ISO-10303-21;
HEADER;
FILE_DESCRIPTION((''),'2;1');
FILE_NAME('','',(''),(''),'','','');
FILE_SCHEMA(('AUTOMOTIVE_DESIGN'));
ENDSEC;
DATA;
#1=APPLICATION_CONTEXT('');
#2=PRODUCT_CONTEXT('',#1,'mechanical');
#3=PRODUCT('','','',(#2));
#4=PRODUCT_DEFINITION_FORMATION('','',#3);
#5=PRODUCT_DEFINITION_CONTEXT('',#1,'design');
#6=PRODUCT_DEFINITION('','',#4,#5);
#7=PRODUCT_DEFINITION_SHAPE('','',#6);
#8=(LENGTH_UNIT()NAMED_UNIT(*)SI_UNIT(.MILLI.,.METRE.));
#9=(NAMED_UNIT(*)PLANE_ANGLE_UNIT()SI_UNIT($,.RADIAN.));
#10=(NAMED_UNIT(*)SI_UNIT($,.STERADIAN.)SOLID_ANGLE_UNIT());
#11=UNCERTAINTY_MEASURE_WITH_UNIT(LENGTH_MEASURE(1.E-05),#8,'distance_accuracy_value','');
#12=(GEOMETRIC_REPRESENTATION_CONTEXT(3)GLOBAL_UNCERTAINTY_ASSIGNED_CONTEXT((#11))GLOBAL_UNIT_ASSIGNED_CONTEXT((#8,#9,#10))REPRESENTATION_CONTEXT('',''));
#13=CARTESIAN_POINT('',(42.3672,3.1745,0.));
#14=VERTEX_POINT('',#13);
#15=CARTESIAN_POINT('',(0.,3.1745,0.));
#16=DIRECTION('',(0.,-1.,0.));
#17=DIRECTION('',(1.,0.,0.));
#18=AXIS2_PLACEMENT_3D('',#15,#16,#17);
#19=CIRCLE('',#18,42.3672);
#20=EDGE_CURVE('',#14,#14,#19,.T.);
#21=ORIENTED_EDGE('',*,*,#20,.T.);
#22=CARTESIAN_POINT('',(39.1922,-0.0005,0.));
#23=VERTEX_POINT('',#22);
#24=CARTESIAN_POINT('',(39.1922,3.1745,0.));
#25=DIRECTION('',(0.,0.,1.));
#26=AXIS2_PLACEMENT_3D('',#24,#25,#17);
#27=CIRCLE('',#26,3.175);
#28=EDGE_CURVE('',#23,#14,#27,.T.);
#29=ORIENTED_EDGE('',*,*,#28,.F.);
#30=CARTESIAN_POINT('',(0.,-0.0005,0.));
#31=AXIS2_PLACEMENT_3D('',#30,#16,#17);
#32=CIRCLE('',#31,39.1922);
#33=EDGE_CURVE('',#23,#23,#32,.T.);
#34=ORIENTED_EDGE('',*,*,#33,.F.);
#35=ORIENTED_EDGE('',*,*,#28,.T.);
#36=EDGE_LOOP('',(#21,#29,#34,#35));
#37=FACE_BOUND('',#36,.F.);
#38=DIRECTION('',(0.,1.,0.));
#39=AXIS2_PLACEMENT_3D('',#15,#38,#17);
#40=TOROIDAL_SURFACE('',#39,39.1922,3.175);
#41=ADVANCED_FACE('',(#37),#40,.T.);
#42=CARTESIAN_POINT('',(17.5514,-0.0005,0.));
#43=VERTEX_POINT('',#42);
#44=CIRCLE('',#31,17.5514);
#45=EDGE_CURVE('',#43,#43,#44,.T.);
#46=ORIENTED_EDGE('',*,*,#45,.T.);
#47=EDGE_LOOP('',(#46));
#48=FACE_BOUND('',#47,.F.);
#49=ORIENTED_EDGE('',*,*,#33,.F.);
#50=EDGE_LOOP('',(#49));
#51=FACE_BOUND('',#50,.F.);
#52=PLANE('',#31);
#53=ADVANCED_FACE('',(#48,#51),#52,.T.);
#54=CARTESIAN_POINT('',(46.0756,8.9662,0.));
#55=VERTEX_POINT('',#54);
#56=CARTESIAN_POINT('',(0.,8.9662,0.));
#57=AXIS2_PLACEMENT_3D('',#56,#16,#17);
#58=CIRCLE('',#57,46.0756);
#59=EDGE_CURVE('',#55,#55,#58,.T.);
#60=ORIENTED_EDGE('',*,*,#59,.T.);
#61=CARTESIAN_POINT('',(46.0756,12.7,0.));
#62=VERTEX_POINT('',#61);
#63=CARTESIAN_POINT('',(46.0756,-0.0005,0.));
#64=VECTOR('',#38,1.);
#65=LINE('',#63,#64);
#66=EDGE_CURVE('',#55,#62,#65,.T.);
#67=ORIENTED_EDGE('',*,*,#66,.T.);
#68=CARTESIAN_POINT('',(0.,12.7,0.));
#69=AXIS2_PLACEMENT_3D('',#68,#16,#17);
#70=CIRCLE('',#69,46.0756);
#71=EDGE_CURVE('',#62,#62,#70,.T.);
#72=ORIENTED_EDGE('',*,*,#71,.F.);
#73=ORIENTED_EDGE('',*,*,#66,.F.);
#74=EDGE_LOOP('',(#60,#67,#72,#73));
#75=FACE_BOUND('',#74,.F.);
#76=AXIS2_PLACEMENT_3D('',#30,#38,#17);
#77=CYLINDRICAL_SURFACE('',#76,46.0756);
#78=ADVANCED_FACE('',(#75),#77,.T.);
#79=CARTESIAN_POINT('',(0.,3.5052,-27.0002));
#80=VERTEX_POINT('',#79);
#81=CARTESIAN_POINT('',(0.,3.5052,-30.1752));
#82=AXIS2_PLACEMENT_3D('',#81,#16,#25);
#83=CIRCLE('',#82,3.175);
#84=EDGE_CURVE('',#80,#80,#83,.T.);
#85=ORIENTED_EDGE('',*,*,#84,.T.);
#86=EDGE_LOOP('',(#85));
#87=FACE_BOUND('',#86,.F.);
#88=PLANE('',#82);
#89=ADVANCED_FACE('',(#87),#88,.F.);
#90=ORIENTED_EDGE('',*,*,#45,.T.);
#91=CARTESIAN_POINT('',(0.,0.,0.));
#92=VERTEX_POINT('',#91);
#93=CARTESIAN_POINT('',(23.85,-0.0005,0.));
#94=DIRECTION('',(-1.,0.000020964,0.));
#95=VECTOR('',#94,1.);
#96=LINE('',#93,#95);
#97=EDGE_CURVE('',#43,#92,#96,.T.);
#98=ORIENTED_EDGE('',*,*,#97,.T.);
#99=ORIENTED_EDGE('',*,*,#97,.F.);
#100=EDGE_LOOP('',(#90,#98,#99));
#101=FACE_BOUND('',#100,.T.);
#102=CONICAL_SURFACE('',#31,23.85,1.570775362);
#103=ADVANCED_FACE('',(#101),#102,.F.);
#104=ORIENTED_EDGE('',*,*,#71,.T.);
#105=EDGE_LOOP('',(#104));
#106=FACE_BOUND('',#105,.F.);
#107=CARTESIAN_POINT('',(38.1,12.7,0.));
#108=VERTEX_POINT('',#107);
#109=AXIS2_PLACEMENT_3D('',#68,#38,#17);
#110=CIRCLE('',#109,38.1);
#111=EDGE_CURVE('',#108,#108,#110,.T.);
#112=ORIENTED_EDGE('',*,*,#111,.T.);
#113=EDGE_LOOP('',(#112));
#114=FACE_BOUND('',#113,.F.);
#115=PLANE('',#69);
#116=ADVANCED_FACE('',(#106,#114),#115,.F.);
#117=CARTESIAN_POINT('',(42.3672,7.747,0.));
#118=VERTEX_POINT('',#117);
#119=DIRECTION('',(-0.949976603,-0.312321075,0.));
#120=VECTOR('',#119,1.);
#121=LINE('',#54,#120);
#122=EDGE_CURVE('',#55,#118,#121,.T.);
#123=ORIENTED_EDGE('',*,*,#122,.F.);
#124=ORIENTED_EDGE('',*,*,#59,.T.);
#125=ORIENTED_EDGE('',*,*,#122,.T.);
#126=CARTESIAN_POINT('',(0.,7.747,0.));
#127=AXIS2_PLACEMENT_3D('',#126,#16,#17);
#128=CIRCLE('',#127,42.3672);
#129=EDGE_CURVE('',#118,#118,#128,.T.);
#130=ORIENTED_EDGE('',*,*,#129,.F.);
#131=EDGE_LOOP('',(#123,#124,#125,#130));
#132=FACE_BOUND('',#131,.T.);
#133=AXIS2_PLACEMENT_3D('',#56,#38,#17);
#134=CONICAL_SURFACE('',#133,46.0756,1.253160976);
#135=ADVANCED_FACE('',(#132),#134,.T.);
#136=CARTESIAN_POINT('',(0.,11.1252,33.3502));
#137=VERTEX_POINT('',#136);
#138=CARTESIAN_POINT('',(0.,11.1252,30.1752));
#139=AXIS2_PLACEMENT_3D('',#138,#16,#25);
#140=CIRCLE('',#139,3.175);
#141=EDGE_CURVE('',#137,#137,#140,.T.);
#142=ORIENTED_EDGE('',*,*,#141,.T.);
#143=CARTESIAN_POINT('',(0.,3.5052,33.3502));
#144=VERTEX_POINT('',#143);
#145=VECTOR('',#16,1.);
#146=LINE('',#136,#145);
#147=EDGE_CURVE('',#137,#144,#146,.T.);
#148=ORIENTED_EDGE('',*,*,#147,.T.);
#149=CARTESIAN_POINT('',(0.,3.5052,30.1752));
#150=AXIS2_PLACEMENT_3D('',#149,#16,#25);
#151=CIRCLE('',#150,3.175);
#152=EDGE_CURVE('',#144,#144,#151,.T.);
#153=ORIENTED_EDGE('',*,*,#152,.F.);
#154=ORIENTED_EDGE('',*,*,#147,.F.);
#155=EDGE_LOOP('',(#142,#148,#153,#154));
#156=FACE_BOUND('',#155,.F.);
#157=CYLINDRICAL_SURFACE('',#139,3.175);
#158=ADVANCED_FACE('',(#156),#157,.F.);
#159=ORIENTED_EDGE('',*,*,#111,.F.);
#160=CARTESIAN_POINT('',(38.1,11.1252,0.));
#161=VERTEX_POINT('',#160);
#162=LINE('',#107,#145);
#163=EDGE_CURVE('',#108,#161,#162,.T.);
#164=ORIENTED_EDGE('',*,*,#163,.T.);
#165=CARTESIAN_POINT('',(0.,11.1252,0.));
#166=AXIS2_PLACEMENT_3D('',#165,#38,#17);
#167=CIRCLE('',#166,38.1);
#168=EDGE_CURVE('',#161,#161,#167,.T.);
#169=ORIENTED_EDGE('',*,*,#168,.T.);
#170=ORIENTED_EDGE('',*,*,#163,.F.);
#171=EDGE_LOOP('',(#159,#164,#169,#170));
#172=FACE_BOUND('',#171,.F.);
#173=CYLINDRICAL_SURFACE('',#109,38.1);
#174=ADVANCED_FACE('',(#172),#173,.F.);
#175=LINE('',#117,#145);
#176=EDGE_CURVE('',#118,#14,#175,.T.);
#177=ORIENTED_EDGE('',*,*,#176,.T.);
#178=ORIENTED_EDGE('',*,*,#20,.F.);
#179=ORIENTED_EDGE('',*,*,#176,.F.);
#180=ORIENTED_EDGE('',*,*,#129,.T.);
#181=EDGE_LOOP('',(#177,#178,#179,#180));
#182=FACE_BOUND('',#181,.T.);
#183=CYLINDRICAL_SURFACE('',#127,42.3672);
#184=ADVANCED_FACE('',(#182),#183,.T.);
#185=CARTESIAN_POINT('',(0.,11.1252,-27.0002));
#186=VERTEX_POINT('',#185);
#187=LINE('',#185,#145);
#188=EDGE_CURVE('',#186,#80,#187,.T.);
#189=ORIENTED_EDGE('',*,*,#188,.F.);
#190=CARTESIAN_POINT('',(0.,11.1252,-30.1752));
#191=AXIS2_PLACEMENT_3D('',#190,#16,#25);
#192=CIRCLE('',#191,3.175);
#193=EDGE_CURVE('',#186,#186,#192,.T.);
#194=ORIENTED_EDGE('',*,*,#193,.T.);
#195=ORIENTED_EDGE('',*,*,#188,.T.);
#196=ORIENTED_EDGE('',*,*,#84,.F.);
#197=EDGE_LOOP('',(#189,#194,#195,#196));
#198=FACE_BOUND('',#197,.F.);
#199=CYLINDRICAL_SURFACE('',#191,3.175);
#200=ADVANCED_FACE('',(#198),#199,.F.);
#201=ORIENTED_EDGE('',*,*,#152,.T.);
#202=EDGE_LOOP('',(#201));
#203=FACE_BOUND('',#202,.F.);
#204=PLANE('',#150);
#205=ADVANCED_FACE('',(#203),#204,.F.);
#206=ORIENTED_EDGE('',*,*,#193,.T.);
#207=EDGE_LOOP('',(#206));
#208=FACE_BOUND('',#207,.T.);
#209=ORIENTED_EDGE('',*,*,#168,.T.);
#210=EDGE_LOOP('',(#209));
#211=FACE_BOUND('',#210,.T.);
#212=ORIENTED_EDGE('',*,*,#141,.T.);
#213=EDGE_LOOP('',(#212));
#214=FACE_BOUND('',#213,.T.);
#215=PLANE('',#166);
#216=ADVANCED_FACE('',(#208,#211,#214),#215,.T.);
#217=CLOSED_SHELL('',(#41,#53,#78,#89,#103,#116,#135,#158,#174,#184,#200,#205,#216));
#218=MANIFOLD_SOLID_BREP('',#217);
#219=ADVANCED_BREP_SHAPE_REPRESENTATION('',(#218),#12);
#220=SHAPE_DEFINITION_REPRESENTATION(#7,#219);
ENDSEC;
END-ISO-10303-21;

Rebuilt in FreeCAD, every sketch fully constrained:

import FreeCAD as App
import Part
import Sketcher

V = App.Vector
Q = App.Units.Quantity


def edges_at(feature, points):
    """Names of the edges that pass closest to the given points."""
    edges = feature.Shape.Edges
    near = lambda p: min(range(len(edges)), key=lambda i: edges[i].distToShape(Part.Vertex(*p))[0])
    return sorted({f"Edge{near(p) + 1}" for p in points})

doc = App.newDocument("Part")
body = doc.addObject("PartDesign::Body", "Body")

# Sketch on XY plane
sketch1 = body.newObject("Sketcher::SketchObject", "Sketch")
sketch1.AttachmentSupport = (doc.getObject("XY_Plane"), [""])
sketch1.MapMode = "FlatFace"
sketch1.addGeometry([
    Part.LineSegment(V(17.5514, -0.0005, 0), V(42.3672, -0.0005, 0)),  # 0
    Part.LineSegment(V(42.3672, -0.0005, 0), V(42.3672, 7.747, 0)),  # 1
    Part.LineSegment(V(42.3672, 7.747, 0), V(46.0756, 8.9662, 0)),  # 2
    Part.LineSegment(V(46.0756, 8.9662, 0), V(46.0756, 12.7, 0)),  # 3
    Part.LineSegment(V(46.0756, 12.7, 0), V(0, 12.7, 0)),  # 4
    Part.LineSegment(V(0, 12.7, 0), V(0, 0, 0)),  # 5
    Part.LineSegment(V(0, 0, 0), V(17.5514, -0.000368, 0)),  # 6
], False)
sketch1.addConstraint([
    Sketcher.Constraint("Coincident", 0, 2, 1, 1),
    Sketcher.Constraint("Coincident", 1, 2, 2, 1),
    Sketcher.Constraint("Coincident", 2, 2, 3, 1),
    Sketcher.Constraint("Coincident", 3, 2, 4, 1),
    Sketcher.Constraint("Coincident", 4, 2, 5, 1),
    Sketcher.Constraint("Coincident", 5, 2, 6, 1),
    Sketcher.Constraint("Coincident", 6, 2, 0, 1),
    Sketcher.Constraint("Horizontal", 0),
    Sketcher.Constraint("Vertical", 1),
    Sketcher.Constraint("Vertical", 3),
    Sketcher.Constraint("Horizontal", 4),
    Sketcher.Constraint("Vertical", 5),
    Sketcher.Constraint("Coincident", 5, 2, -1, 1),
    Sketcher.Constraint("DistanceY", 5, 2, 5, 1, Q("0.5 in")),
    Sketcher.Constraint("DistanceX", 4, 2, 4, 1, Q("1.814 in")),
    Sketcher.Constraint("DistanceY", 3, 1, 3, 2, Q("0.147 in")),
    Sketcher.Constraint("Distance", 6, Q("0.691 in")),
    Sketcher.Constraint("DistanceX", -1, 1, 0, 2, Q("1.668 in")),
    Sketcher.Constraint("DistanceY", 1, 2, 3, 2, Q("0.195 in")),
    Sketcher.Constraint("DistanceY", 0, 2, -1, 1, 0.0005),
])
revolution = body.newObject("PartDesign::Revolution", "Revolution")
revolution.Profile = sketch1
revolution.ReferenceAxis = (sketch1, ["V_Axis"])
revolution.Angle = 360

# Sketch on XZ plane
sketch2 = body.newObject("Sketcher::SketchObject", "Sketch001")
sketch2.AttachmentSupport = (doc.getObject("XZ_Plane"), [""])
sketch2.MapMode = "FlatFace"
sketch2.AttachmentOffset = App.Placement(V(0, 0, -0.5 * 25.4), App.Rotation())
sketch2.addGeometry(Part.Circle(V(0, 0, 0), V(0, 0, 1), 38.1), False)
sketch2.addConstraint([
    Sketcher.Constraint("Coincident", 0, 3, -1, 1),
    Sketcher.Constraint("Diameter", 0, Q("3 in")),
])
pocket1 = body.newObject("PartDesign::Pocket", "Pocket")
pocket1.Profile = sketch2
pocket1.Length = Q("0.062 in")
pocket1.Reversed = True

# Sketch on XZ plane
sketch3 = body.newObject("Sketcher::SketchObject", "Sketch002")
sketch3.AttachmentSupport = (doc.getObject("XZ_Plane"), [""])
sketch3.MapMode = "FlatFace"
sketch3.AttachmentOffset = App.Placement(V(0, 0, -0.438 * 25.4), App.Rotation())
sketch3.addGeometry([
    Part.Circle(V(0, -30.1752, 0), V(0, 0, 1), 3.175),
    Part.Circle(V(0, 30.1752, 0), V(0, 0, 1), 3.175),
], False)
sketch3.addConstraint([
    Sketcher.Constraint("Equal", 0, 1),
    Sketcher.Constraint("Symmetric", 0, 3, 1, 3, -1, 1),
    Sketcher.Constraint("PointOnObject", 0, 3, -2),
    Sketcher.Constraint("Diameter", 0, Q("0.25 in")),
    Sketcher.Constraint("DistanceY", 0, 3, -1, 1, Q("1.188 in")),
])
doc.recompute()
hole = body.newObject("PartDesign::Hole", "Hole")
hole.Profile = sketch3
hole.ThreadType = "None"
hole.Diameter = Q("0.25 in")
hole.DepthType = "Dimension"
hole.Depth = Q("0.3 in")
hole.DrillPoint = "Flat"
hole.Reversed = True
doc.recompute()

fillet = body.newObject("PartDesign::Fillet", "Fillet")
fillet.Base = (hole, edges_at(hole, [(-42.367, -0.001, 0)]))
fillet.Radius = Q("0.125 in")

doc.recompute()
